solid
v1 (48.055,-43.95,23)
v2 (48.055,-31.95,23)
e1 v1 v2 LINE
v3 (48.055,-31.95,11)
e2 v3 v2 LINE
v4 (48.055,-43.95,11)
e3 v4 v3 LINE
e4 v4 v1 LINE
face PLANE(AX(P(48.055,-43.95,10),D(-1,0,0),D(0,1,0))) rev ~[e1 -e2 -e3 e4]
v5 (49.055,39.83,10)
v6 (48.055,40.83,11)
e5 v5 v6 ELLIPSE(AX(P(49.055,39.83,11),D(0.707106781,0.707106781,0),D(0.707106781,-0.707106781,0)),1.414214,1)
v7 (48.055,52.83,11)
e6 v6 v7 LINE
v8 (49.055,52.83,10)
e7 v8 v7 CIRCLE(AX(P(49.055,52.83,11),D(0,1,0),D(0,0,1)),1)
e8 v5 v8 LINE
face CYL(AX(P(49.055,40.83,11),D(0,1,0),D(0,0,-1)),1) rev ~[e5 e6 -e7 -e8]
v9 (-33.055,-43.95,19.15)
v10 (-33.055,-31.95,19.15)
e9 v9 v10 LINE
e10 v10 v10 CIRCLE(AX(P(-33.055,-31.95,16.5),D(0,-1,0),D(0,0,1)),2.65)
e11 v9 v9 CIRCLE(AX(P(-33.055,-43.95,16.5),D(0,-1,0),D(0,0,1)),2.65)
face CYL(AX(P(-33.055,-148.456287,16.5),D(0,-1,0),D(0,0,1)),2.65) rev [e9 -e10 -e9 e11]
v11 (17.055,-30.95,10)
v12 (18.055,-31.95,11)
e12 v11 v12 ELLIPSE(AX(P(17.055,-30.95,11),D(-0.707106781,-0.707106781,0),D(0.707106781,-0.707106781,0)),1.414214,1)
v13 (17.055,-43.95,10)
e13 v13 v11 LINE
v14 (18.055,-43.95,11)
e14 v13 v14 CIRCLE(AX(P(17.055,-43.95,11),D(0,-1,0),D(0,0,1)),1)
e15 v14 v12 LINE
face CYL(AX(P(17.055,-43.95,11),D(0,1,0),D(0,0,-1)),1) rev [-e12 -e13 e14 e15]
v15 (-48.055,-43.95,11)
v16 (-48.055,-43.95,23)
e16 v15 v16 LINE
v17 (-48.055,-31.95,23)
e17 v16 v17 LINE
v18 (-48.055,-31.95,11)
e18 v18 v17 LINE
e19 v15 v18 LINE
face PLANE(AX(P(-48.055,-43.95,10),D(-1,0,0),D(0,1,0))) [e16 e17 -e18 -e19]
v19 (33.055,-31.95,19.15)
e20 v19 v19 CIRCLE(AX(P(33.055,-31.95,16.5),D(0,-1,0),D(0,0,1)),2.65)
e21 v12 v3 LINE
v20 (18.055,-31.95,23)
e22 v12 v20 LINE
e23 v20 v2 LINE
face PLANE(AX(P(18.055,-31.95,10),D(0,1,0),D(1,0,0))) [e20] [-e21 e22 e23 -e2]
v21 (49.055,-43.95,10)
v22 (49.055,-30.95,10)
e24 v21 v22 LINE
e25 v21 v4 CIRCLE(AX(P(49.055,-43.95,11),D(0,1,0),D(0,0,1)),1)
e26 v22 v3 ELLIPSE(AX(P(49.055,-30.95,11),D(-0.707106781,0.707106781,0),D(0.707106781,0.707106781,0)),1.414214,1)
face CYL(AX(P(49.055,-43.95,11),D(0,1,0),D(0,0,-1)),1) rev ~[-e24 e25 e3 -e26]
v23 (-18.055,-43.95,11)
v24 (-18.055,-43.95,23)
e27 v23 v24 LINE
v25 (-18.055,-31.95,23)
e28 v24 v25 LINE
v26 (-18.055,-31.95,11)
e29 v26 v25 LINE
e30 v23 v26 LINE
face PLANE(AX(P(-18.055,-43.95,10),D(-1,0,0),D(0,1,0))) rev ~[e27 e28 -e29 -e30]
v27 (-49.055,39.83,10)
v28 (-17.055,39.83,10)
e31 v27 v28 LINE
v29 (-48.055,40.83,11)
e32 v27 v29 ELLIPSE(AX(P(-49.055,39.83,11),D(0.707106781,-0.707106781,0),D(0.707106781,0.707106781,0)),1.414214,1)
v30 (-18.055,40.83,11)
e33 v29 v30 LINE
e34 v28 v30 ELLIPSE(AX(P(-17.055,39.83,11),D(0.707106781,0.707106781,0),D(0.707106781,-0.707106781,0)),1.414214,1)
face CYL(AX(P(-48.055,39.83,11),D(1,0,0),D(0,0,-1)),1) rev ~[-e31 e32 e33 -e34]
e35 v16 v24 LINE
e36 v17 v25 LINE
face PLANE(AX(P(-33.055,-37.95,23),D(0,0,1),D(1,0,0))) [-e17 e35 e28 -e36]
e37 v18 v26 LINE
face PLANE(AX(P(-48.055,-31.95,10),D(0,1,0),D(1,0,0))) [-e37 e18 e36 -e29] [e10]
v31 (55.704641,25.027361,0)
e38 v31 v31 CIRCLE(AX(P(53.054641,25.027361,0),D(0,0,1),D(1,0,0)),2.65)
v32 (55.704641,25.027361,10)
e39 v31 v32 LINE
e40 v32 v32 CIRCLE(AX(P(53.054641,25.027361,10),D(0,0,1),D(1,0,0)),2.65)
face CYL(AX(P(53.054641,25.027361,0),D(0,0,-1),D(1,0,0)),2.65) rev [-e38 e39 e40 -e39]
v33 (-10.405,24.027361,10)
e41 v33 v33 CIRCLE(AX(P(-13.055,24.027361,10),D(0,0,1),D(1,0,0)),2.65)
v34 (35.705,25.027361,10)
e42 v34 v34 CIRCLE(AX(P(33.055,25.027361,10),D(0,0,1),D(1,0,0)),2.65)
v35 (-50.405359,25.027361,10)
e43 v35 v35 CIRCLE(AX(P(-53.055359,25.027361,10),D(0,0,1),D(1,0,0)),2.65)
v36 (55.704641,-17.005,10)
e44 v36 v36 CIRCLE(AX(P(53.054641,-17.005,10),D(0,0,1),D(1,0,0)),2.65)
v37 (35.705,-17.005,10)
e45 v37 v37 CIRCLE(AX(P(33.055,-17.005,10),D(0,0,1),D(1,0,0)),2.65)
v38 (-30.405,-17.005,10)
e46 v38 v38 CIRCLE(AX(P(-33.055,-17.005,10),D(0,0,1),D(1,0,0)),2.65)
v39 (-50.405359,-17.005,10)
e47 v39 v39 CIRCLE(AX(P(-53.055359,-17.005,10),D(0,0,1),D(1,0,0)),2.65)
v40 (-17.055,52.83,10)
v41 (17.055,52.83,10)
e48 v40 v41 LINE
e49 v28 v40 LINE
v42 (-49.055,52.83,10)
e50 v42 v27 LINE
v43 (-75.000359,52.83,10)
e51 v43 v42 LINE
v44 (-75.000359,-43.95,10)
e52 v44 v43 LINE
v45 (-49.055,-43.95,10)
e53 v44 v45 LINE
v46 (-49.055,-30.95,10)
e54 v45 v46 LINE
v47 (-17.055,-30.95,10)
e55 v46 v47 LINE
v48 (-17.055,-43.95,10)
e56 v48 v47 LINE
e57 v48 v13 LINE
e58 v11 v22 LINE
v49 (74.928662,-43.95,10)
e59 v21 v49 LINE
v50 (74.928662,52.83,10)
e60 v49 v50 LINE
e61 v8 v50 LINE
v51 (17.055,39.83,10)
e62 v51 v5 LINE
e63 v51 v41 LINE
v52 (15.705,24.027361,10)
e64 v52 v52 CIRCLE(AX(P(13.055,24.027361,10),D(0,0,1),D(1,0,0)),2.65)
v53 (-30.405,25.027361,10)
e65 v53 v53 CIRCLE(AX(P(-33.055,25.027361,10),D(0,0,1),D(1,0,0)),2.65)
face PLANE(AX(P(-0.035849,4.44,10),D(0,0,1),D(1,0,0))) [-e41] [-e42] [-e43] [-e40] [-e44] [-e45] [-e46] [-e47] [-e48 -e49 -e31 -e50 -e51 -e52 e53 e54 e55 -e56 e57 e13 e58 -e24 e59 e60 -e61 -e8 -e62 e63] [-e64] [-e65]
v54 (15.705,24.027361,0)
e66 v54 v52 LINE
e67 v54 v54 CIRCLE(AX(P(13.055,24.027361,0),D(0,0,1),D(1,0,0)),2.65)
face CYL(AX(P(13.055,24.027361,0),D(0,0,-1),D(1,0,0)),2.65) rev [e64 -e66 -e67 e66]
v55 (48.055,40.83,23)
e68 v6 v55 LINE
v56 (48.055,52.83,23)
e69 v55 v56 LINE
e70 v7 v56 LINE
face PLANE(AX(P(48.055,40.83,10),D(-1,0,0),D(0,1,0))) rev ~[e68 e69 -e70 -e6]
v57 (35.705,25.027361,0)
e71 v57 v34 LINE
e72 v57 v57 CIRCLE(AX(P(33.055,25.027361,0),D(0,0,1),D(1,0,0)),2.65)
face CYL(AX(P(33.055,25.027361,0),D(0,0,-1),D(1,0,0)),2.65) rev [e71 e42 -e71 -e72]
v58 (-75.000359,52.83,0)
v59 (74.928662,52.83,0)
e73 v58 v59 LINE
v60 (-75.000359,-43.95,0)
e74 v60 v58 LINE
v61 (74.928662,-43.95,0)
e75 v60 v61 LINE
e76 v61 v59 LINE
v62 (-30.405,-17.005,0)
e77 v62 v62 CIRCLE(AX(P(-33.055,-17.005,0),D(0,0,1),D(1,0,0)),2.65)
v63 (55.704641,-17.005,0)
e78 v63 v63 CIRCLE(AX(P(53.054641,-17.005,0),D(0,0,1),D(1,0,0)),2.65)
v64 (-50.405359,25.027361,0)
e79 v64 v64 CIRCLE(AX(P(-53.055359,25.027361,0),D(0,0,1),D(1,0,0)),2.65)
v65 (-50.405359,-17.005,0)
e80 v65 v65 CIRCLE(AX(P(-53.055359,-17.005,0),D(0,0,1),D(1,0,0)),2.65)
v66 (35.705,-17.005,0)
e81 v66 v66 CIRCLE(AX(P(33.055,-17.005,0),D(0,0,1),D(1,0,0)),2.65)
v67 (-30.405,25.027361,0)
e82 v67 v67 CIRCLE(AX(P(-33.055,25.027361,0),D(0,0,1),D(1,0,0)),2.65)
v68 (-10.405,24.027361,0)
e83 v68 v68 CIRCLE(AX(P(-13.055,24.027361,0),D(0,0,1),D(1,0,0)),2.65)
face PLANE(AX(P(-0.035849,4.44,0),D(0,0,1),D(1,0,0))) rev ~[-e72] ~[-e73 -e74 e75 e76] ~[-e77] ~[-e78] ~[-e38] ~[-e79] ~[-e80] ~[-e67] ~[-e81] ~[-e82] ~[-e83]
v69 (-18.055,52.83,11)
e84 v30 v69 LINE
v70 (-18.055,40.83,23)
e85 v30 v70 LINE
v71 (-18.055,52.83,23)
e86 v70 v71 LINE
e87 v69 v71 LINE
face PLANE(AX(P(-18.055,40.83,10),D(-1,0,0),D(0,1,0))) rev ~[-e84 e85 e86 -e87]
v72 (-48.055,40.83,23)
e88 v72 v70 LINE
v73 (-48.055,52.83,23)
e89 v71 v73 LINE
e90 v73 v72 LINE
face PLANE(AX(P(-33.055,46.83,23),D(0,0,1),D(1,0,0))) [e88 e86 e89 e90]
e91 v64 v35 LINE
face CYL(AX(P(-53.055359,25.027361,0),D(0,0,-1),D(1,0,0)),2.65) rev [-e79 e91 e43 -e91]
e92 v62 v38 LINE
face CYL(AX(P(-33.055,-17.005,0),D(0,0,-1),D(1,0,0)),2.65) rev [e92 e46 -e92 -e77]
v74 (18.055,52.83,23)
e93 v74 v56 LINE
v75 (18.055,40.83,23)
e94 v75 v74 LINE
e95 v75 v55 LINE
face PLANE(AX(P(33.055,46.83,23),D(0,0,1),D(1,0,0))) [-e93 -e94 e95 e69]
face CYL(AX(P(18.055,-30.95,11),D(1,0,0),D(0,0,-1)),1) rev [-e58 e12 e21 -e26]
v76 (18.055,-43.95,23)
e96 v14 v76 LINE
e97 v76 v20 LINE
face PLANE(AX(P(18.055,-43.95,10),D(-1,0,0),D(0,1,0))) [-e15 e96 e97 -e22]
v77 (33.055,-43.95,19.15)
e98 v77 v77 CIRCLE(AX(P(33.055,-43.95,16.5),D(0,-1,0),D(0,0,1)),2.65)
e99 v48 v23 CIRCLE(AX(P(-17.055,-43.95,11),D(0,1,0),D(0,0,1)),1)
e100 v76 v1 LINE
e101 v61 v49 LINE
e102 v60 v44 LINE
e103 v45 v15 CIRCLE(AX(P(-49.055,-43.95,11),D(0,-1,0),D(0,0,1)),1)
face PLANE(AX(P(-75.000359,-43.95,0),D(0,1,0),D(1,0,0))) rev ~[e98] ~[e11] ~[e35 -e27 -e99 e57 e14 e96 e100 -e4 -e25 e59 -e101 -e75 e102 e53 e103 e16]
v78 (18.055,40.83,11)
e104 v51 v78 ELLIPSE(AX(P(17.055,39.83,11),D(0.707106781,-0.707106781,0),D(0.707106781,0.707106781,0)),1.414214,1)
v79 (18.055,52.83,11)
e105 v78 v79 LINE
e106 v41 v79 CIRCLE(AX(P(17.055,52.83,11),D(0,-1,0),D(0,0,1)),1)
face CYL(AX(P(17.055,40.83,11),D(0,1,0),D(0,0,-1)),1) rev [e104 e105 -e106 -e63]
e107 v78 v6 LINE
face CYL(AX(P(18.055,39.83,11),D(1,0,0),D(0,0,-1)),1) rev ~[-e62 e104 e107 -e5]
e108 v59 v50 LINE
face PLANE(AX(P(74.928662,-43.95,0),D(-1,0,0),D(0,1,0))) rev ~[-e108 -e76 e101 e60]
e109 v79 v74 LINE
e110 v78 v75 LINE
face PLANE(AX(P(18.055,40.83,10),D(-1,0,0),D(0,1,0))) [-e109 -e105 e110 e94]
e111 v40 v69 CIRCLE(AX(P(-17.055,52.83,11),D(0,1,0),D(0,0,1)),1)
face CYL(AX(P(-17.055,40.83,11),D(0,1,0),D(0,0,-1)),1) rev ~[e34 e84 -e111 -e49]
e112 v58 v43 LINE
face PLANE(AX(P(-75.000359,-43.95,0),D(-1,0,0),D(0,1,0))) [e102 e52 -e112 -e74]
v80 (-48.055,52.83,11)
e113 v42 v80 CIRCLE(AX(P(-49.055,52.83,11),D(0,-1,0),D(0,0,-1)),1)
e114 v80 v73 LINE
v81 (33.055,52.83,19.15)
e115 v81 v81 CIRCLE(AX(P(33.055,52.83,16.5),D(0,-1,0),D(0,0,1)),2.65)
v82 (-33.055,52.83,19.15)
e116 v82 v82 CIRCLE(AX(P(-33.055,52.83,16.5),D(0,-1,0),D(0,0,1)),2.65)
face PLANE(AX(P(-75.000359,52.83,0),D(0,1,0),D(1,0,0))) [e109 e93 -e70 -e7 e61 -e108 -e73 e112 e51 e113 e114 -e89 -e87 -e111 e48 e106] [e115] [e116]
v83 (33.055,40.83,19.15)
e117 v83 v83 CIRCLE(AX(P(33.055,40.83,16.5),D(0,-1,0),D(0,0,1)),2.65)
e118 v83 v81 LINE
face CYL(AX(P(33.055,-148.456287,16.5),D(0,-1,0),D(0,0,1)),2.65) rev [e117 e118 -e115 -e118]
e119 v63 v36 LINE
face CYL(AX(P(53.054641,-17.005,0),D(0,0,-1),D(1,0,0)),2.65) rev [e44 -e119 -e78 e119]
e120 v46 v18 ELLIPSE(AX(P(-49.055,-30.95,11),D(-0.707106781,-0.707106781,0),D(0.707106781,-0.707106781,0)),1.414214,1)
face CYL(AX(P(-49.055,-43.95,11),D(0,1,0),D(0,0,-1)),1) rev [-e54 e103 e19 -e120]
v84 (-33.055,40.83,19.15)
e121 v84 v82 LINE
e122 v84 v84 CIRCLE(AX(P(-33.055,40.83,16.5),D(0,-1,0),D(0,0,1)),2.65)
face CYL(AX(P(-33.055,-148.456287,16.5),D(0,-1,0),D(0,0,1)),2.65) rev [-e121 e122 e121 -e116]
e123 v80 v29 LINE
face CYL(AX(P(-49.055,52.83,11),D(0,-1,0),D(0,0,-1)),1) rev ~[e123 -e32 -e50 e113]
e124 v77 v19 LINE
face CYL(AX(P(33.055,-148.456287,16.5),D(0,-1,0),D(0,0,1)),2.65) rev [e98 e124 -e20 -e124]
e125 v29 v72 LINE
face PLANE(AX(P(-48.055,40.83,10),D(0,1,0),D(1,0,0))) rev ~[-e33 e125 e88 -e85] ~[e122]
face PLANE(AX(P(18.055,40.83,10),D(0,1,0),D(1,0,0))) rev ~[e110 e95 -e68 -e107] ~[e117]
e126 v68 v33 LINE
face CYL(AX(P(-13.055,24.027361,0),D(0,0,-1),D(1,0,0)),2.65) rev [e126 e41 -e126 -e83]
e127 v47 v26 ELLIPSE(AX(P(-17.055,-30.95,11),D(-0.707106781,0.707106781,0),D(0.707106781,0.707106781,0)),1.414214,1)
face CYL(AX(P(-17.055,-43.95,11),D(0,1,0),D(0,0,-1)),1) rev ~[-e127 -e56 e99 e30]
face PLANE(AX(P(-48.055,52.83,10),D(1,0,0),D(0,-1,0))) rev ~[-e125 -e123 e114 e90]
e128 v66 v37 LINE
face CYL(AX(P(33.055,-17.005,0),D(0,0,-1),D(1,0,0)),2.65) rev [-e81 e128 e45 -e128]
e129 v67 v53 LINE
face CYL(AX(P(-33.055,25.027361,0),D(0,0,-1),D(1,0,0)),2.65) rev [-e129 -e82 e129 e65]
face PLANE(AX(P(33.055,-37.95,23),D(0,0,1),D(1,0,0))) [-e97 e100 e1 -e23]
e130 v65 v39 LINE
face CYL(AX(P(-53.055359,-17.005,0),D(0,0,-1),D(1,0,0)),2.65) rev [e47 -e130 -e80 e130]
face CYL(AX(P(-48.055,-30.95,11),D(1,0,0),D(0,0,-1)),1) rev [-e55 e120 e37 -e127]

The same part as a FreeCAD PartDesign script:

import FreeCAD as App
import Part
import Sketcher
Q = App.Units.Quantity


def edges_at(feature, points):
    """Names of the edges that pass closest to the given points."""
    edges = feature.Shape.Edges
    near = lambda p: min(range(len(edges)), key=lambda i: edges[i].distToShape(Part.Vertex(*p))[0])
    return sorted({f"Edge{near(p) + 1}" for p in points})


def add_polygon(sketch, points):
    """Adds a closed chain of lines whose ends are joined by coincident constraints."""
    first, n = sketch.GeometryCount, len(points)
    for a, b in zip(points, points[1:] + points[:1]):
        sketch.addGeometry(Part.LineSegment(App.Vector(*a, 0), App.Vector(*b, 0)), False)
    for i in range(n):
        sketch.addConstraint(Sketcher.Constraint("Coincident", first + i, 2, first + (i + 1) % n, 1))

doc = App.newDocument("Part")
body = doc.addObject("PartDesign::Body", "Body")

sketch1 = body.newObject("Sketcher::SketchObject", "Sketch")
sketch1.AttachmentSupport = (doc.getObject("XY_Plane"), [""])
sketch1.MapMode = "FlatFace"
add_polygon(sketch1, [(-75, 52.8), (-75, -44), (74.9, -44), (74.9, 52.8)])
sketch1.addGeometry(Part.Circle(App.Vector(-53.1, -17, 0), App.Vector(0, 0, 1), 2.6), False)
sketch1.addGeometry(Part.Circle(App.Vector(-33.1, -17, 0), App.Vector(0, 0, 1), 2.6), False)
sketch1.addGeometry(Part.Circle(App.Vector(33.1, -17, 0), App.Vector(0, 0, 1), 2.6), False)
sketch1.addGeometry(Part.Circle(App.Vector(53.1, -17, 0), App.Vector(0, 0, 1), 2.6), False)
sketch1.addGeometry(Part.Circle(App.Vector(-53.1, 25, 0), App.Vector(0, 0, 1), 2.6), False)
sketch1.addGeometry(Part.Circle(App.Vector(-33.1, 25, 0), App.Vector(0, 0, 1), 2.6), False)
sketch1.addGeometry(Part.Circle(App.Vector(-13.1, 24, 0), App.Vector(0, 0, 1), 2.6), False)
sketch1.addGeometry(Part.Circle(App.Vector(13.1, 24, 0), App.Vector(0, 0, 1), 2.6), False)
sketch1.addGeometry(Part.Circle(App.Vector(33.1, 25, 0), App.Vector(0, 0, 1), 2.6), False)
sketch1.addGeometry(Part.Circle(App.Vector(53.1, 25, 0), App.Vector(0, 0, 1), 2.6), False)
sketch1.addConstraint(Sketcher.Constraint("Vertical", 0))
sketch1.addConstraint(Sketcher.Constraint("Horizontal", 1))
sketch1.addConstraint(Sketcher.Constraint("Vertical", 2))
sketch1.addConstraint(Sketcher.Constraint("Horizontal", 3))
sketch1.addConstraint(Sketcher.Constraint("Equal", 4, 5))
sketch1.addConstraint(Sketcher.Constraint("Equal", 5, 6))
sketch1.addConstraint(Sketcher.Constraint("Equal", 6, 7))
sketch1.addConstraint(Sketcher.Constraint("Equal", 7, 8))
sketch1.addConstraint(Sketcher.Constraint("Equal", 8, 9))
sketch1.addConstraint(Sketcher.Constraint("Equal", 9, 10))
sketch1.addConstraint(Sketcher.Constraint("Equal", 10, 11))
sketch1.addConstraint(Sketcher.Constraint("Equal", 11, 12))
sketch1.addConstraint(Sketcher.Constraint("Equal", 12, 13))
sketch1.addConstraint(Sketcher.Constraint("Symmetric", 5, 3, 6, 3, -2))
sketch1.addConstraint(Sketcher.Constraint("Symmetric", 10, 3, 11, 3, -2))
sketch1.addConstraint(Sketcher.Constraint("Symmetric", 9, 3, 12, 3, -2))
sketch1.addConstraint(Sketcher.Constraint("Horizontal", 4, 3, 5, 3))
sketch1.addConstraint(Sketcher.Constraint("Horizontal", 6, 3, 7, 3))
sketch1.addConstraint(Sketcher.Constraint("Horizontal", 8, 3, 9, 3))
sketch1.addConstraint(Sketcher.Constraint("Horizontal", 12, 3, 13, 3))
sketch1.addConstraint(Sketcher.Constraint("Vertical", 4, 3, 8, 3))
sketch1.addConstraint(Sketcher.Constraint("Vertical", 5, 3, 9, 3))
sketch1.addConstraint(Sketcher.Constraint("Vertical", 7, 3, 13, 3))
sketch1.addConstraint(Sketcher.Constraint("Diameter", 4, Q("5.3 mm")))
sketch1.addConstraint(Sketcher.Constraint("DistanceX", 9, 3, 10, 3, Q("20 mm")))
sketch1.addConstraint(Sketcher.Constraint("DistanceY", 10, 3, 9, 3, Q("1 mm")))
sketch1.addConstraint(Sketcher.Constraint("DistanceY", 0, 2, 0, 1, Q("96.78 mm")))
sketch1.addConstraint(Sketcher.Constraint("DistanceY", 0, 2, -1, 1, Q("43.95 mm")))
sketch1.addConstraint(Sketcher.Constraint("DistanceX", 5, 3, 6, 3, Q("66.11 mm")))
sketch1.addConstraint(Sketcher.Constraint("DistanceX", 4, 3, 7, 3, Q("106.11 mm")))
sketch1.addConstraint(Sketcher.Constraint("DistanceY", 4, 3, -1, 1, Q("17.005 mm")))
sketch1.addConstraint(Sketcher.Constraint("DistanceX", 0, 2, 4, 3, Q("21.945 mm")))
sketch1.addConstraint(Sketcher.Constraint("DistanceX", 1, 1, 1, 2, Q("149.929021 mm")))
sketch1.addConstraint(Sketcher.Constraint("DistanceX", 4, 3, -1, 1, Q("53.055359 mm")))
sketch1.addConstraint(Sketcher.Constraint("DistanceY", -1, 1, 8, 3, Q("25.027361 mm")))
pad1 = body.newObject("PartDesign::Pad", "Pad")
pad1.Profile = sketch1
pad1.Length = 10

sketch2 = body.newObject("Sketcher::SketchObject", "Sketch001")
sketch2.AttachmentSupport = (doc.getObject("XY_Plane"), [""])
sketch2.MapMode = "FlatFace"
sketch2.AttachmentOffset = App.Placement(App.Vector(0, 0, 10), App.Rotation())
add_polygon(sketch2, [(-48, 41), (-18, 41), (-18, 53), (-48, 53)])
add_polygon(sketch2, [(18, 53), (18, 41), (48, 41), (48, 53)])
add_polygon(sketch2, [(-48, -32), (-48, -44), (-18, -44), (-18, -32)])
add_polygon(sketch2, [(18, -32), (18, -44), (48, -44), (48, -32)])
sketch2.addConstraint(Sketcher.Constraint("Horizontal", 0))
sketch2.addConstraint(Sketcher.Constraint("Vertical", 1))
sketch2.addConstraint(Sketcher.Constraint("Horizontal", 2))
sketch2.addConstraint(Sketcher.Constraint("Vertical", 3))
sketch2.addConstraint(Sketcher.Constraint("Vertical", 4))
sketch2.addConstraint(Sketcher.Constraint("Horizontal", 5))
sketch2.addConstraint(Sketcher.Constraint("Vertical", 6))
sketch2.addConstraint(Sketcher.Constraint("Horizontal", 7))
sketch2.addConstraint(Sketcher.Constraint("Vertical", 8))
sketch2.addConstraint(Sketcher.Constraint("Horizontal", 9))
sketch2.addConstraint(Sketcher.Constraint("Vertical", 10))
sketch2.addConstraint(Sketcher.Constraint("Horizontal", 11))
sketch2.addConstraint(Sketcher.Constraint("Vertical", 12))
sketch2.addConstraint(Sketcher.Constraint("Horizontal", 13))
sketch2.addConstraint(Sketcher.Constraint("Vertical", 14))
sketch2.addConstraint(Sketcher.Constraint("Horizontal", 15))
sketch2.addConstraint(Sketcher.Constraint("Symmetric", 0, 2, 4, 2, -2))
sketch2.addConstraint(Sketcher.Constraint("Symmetric", 2, 2, 6, 2, -2))
sketch2.addConstraint(Sketcher.Constraint("Symmetric", 9, 2, 12, 2, -2))
sketch2.addConstraint(Sketcher.Constraint("Symmetric", 11, 2, 14, 2, -2))
sketch2.addConstraint(Sketcher.Constraint("Vertical", 3, 2, 8, 2))
sketch2.addConstraint(Sketcher.Constraint("Vertical", 1, 2, 9, 2))
sketch2.addConstraint(Sketcher.Constraint("Equal", 6, 8))
sketch2.addConstraint(Sketcher.Constraint("DistanceX", 0, 1, 0, 2, Q("30 mm")))
sketch2.addConstraint(Sketcher.Constraint("DistanceY", 1, 1, 1, 2, Q("12 mm")))
sketch2.addConstraint(Sketcher.Constraint("DistanceY", -1, 1, 0, 2, Q("40.83 mm")))
sketch2.addConstraint(Sketcher.Constraint("DistanceY", 8, 2, -1, 1, Q("43.95 mm")))
sketch2.addConstraint(Sketcher.Constraint("DistanceX", 0, 2, 4, 2, Q("36.11 mm")))
pad2 = body.newObject("PartDesign::Pad", "Pad001")
pad2.Profile = sketch2
pad2.Length = 13

sketch3 = body.newObject("Sketcher::SketchObject", "Sketch002")
sketch3.AttachmentSupport = (doc.getObject("XZ_Plane"), [""])
sketch3.MapMode = "FlatFace"
sketch3.AttachmentOffset = App.Placement(App.Vector(0, 0, 31.95), App.Rotation())
sketch3.addGeometry(Part.Circle(App.Vector(-33.1, 16.5, 0), App.Vector(0, 0, 1), 2.6), False)
sketch3.addGeometry(Part.Circle(App.Vector(33.1, 16.5, 0), App.Vector(0, 0, 1), 2.6), False)
sketch3.addConstraint(Sketcher.Constraint("Equal", 0, 1))
sketch3.addConstraint(Sketcher.Constraint("Symmetric", 0, 3, 1, 3, -2))
sketch3.addConstraint(Sketcher.Constraint("Diameter", 0, Q("5.3 mm")))
sketch3.addConstraint(Sketcher.Constraint("DistanceY", -1, 1, 0, 3, Q("16.5 mm")))
sketch3.addConstraint(Sketcher.Constraint("DistanceX", 0, 3, 1, 3, Q("66.11 mm")))
pocket1 = body.newObject("PartDesign::Pocket", "Pocket")
pocket1.Profile = sketch3
pocket1.Type = "ThroughAll"
pocket1.Midplane = True
doc.recompute()

fillet = body.newObject("PartDesign::Fillet", "Fillet")
fillet.Base = (pocket1, edges_at(pocket1, [
    (-33.055, 40.83, 10),
    (-18.055, 46.83, 10),
    (-48.055, 46.83, 10),
    (33.055, 40.83, 10),
    (48.055, 46.83, 10),
    (18.055, 46.83, 10),
    (-18.055, -37.95, 10),
    (-33.055, -31.95, 10),
    (-48.055, -37.95, 10),
    (48.055, -37.95, 10),
    (33.055, -31.95, 10),
    (18.055, -37.95, 10),
]))
fillet.Radius = 1

doc.recompute()
